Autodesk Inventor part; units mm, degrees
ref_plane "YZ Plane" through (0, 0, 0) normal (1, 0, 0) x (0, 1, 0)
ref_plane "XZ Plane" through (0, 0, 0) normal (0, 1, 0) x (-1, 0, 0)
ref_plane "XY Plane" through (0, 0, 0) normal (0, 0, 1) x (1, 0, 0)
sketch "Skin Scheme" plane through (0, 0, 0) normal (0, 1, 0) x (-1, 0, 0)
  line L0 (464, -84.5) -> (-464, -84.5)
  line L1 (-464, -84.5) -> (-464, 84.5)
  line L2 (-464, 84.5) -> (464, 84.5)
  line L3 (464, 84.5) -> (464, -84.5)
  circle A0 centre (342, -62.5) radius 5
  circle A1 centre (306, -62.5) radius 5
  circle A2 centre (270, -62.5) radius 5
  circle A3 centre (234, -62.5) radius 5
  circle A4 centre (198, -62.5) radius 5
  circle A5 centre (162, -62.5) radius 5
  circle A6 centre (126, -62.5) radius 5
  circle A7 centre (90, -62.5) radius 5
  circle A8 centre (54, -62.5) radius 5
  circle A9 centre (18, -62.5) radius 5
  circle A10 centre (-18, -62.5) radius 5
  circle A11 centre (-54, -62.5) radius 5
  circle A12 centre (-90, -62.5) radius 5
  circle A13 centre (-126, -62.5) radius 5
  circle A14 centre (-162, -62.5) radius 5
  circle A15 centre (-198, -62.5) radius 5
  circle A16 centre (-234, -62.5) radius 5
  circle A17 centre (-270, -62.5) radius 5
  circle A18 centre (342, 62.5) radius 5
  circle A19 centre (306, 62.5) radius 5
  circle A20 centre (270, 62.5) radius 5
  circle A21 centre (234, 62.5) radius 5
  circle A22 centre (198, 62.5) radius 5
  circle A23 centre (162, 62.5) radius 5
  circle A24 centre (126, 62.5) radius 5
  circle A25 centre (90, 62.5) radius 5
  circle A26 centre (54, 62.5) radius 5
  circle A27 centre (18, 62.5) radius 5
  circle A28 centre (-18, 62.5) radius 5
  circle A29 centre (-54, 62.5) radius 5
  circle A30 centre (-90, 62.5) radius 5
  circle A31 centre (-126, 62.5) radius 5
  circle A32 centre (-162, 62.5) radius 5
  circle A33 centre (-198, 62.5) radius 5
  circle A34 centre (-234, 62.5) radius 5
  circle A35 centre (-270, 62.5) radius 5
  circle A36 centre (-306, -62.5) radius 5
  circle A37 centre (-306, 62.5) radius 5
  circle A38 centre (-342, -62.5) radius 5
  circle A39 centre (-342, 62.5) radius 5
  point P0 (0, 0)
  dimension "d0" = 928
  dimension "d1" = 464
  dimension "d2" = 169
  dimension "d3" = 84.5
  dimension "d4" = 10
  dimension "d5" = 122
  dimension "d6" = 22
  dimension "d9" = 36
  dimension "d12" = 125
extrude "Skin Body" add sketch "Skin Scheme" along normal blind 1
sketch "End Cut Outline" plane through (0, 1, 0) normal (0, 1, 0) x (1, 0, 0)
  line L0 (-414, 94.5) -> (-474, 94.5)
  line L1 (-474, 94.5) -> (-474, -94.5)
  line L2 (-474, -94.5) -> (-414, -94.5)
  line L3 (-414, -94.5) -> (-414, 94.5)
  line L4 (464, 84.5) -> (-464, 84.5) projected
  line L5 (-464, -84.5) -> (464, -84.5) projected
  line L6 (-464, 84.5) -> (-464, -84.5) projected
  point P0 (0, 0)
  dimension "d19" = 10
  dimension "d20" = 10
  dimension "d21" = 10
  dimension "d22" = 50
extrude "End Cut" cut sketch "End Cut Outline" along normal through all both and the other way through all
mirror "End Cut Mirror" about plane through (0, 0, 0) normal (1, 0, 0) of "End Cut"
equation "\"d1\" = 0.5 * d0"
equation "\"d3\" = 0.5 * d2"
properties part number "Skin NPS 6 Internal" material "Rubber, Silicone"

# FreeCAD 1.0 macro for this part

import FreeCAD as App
import Part
import Sketcher
from FreeCAD import Vector


def add_polygon(sketch, points):
    """Adds a closed chain of lines whose ends are joined by coincident constraints."""
    first, n = sketch.GeometryCount, len(points)
    for a, b in zip(points, points[1:] + points[:1]):
        sketch.addGeometry(Part.LineSegment(App.Vector(*a, 0), App.Vector(*b, 0)), False)
    for i in range(n):
        sketch.addConstraint(Sketcher.Constraint("Coincident", first + i, 2, first + (i + 1) % n, 1))

doc = App.newDocument("Part")
body = doc.addObject("PartDesign::Body", "Body")

# Sketch on XZ plane
sketch1 = body.newObject("Sketcher::SketchObject", "Sketch")
sketch1.AttachmentSupport = (doc.getObject("XZ_Plane"), [""])
sketch1.MapMode = "FlatFace"
add_polygon(sketch1, [(464, -84.5), (-464, -84.5), (-464, 84.5), (464, 84.5)])  # lines 0-3
sketch1.addGeometry(Part.Circle(Vector(342, -62.5, 0), Vector(0, 0, 1), 5), False)  # 4
sketch1.addGeometry(Part.Circle(Vector(306, -62.5, 0), Vector(0, 0, 1), 5), False)  # 5
sketch1.addGeometry(Part.Circle(Vector(270, -62.5, 0), Vector(0, 0, 1), 5), False)  # 6
sketch1.addGeometry(Part.Circle(Vector(234, -62.5, 0), Vector(0, 0, 1), 5), False)  # 7
sketch1.addGeometry(Part.Circle(Vector(198, -62.5, 0), Vector(0, 0, 1), 5), False)  # 8
sketch1.addGeometry(Part.Circle(Vector(162, -62.5, 0), Vector(0, 0, 1), 5), False)  # 9
sketch1.addGeometry(Part.Circle(Vector(126, -62.5, 0), Vector(0, 0, 1), 5), False)  # 10
sketch1.addGeometry(Part.Circle(Vector(90, -62.5, 0), Vector(0, 0, 1), 5), False)  # 11
sketch1.addGeometry(Part.Circle(Vector(54, -62.5, 0), Vector(0, 0, 1), 5), False)  # 12
sketch1.addGeometry(Part.Circle(Vector(18, -62.5, 0), Vector(0, 0, 1), 5), False)  # 13
sketch1.addGeometry(Part.Circle(Vector(-18, -62.5, 0), Vector(0, 0, 1), 5), False)  # 14
sketch1.addGeometry(Part.Circle(Vector(-54, -62.5, 0), Vector(0, 0, 1), 5), False)  # 15
sketch1.addGeometry(Part.Circle(Vector(-90, -62.5, 0), Vector(0, 0, 1), 5), False)  # 16
sketch1.addGeometry(Part.Circle(Vector(-126, -62.5, 0), Vector(0, 0, 1), 5), False)  # 17
sketch1.addGeometry(Part.Circle(Vector(-162, -62.5, 0), Vector(0, 0, 1), 5), False)  # 18
sketch1.addGeometry(Part.Circle(Vector(-198, -62.5, 0), Vector(0, 0, 1), 5), False)  # 19
sketch1.addGeometry(Part.Circle(Vector(-234, -62.5, 0), Vector(0, 0, 1), 5), False)  # 20
sketch1.addGeometry(Part.Circle(Vector(-270, -62.5, 0), Vector(0, 0, 1), 5), False)  # 21
sketch1.addGeometry(Part.Circle(Vector(-306, -62.5, 0), Vector(0, 0, 1), 5), False)  # 22
sketch1.addGeometry(Part.Circle(Vector(-342, -62.5, 0), Vector(0, 0, 1), 5), False)  # 23
sketch1.addGeometry(Part.Circle(Vector(342, 62.5, 0), Vector(0, 0, 1), 5), False)  # 24
sketch1.addGeometry(Part.Circle(Vector(306, 62.5, 0), Vector(0, 0, 1), 5), False)  # 25
sketch1.addGeometry(Part.Circle(Vector(270, 62.5, 0), Vector(0, 0, 1), 5), False)  # 26
sketch1.addGeometry(Part.Circle(Vector(234, 62.5, 0), Vector(0, 0, 1), 5), False)  # 27
sketch1.addGeometry(Part.Circle(Vector(198, 62.5, 0), Vector(0, 0, 1), 5), False)  # 28
sketch1.addGeometry(Part.Circle(Vector(162, 62.5, 0), Vector(0, 0, 1), 5), False)  # 29
sketch1.addGeometry(Part.Circle(Vector(126, 62.5, 0), Vector(0, 0, 1), 5), False)  # 30
sketch1.addGeometry(Part.Circle(Vector(90, 62.5, 0), Vector(0, 0, 1), 5), False)  # 31
sketch1.addGeometry(Part.Circle(Vector(54, 62.5, 0), Vector(0, 0, 1), 5), False)  # 32
sketch1.addGeometry(Part.Circle(Vector(18, 62.5, 0), Vector(0, 0, 1), 5), False)  # 33
sketch1.addGeometry(Part.Circle(Vector(-18, 62.5, 0), Vector(0, 0, 1), 5), False)  # 34
sketch1.addGeometry(Part.Circle(Vector(-54, 62.5, 0), Vector(0, 0, 1), 5), False)  # 35
sketch1.addGeometry(Part.Circle(Vector(-90, 62.5, 0), Vector(0, 0, 1), 5), False)  # 36
sketch1.addGeometry(Part.Circle(Vector(-126, 62.5, 0), Vector(0, 0, 1), 5), False)  # 37
sketch1.addGeometry(Part.Circle(Vector(-162, 62.5, 0), Vector(0, 0, 1), 5), False)  # 38
sketch1.addGeometry(Part.Circle(Vector(-198, 62.5, 0), Vector(0, 0, 1), 5), False)  # 39
sketch1.addGeometry(Part.Circle(Vector(-234, 62.5, 0), Vector(0, 0, 1), 5), False)  # 40
sketch1.addGeometry(Part.Circle(Vector(-270, 62.5, 0), Vector(0, 0, 1), 5), False)  # 41
sketch1.addGeometry(Part.Circle(Vector(-306, 62.5, 0), Vector(0, 0, 1), 5), False)  # 42
sketch1.addGeometry(Part.Circle(Vector(-342, 62.5, 0), Vector(0, 0, 1), 5), False)  # 43
sketch1.addConstraint([
    Sketcher.Constraint("Horizontal", 0),
    Sketcher.Constraint("Vertical", 1),
    Sketcher.Constraint("Horizontal", 2),
    Sketcher.Constraint("Vertical", 3),
    Sketcher.Constraint("Equal", 4, 5),
    Sketcher.Constraint("Equal", 5, 6),
    Sketcher.Constraint("Equal", 6, 7),
    Sketcher.Constraint("Equal", 7, 8),
    Sketcher.Constraint("Equal", 8, 9),
    Sketcher.Constraint("Equal", 9, 10),
    Sketcher.Constraint("Equal", 10, 11),
    Sketcher.Constraint("Equal", 11, 12),
    Sketcher.Constraint("Equal", 12, 13),
    Sketcher.Constraint("Equal", 13, 14),
    Sketcher.Constraint("Equal", 14, 15),
    Sketcher.Constraint("Equal", 15, 16),
    Sketcher.Constraint("Equal", 16, 17),
    Sketcher.Constraint("Equal", 17, 18),
    Sketcher.Constraint("Equal", 18, 19),
    Sketcher.Constraint("Equal", 19, 20),
    Sketcher.Constraint("Equal", 20, 21),
    Sketcher.Constraint("Equal", 21, 22),
    Sketcher.Constraint("Equal", 22, 23),
    Sketcher.Constraint("Equal", 23, 24),
    Sketcher.Constraint("Equal", 24, 25),
    Sketcher.Constraint("Equal", 25, 26),
    Sketcher.Constraint("Equal", 26, 27),
    Sketcher.Constraint("Equal", 27, 28),
    Sketcher.Constraint("Equal", 28, 29),
    Sketcher.Constraint("Equal", 29, 30),
    Sketcher.Constraint("Equal", 30, 31),
    Sketcher.Constraint("Equal", 31, 32),
    Sketcher.Constraint("Equal", 32, 33),
    Sketcher.Constraint("Equal", 33, 34),
    Sketcher.Constraint("Equal", 34, 35),
    Sketcher.Constraint("Equal", 35, 36),
    Sketcher.Constraint("Equal", 36, 37),
    Sketcher.Constraint("Equal", 37, 38),
    Sketcher.Constraint("Equal", 38, 39),
    Sketcher.Constraint("Equal", 39, 40),
    Sketcher.Constraint("Equal", 40, 41),
    Sketcher.Constraint("Equal", 41, 42),
    Sketcher.Constraint("Equal", 42, 43),
    Sketcher.Constraint("Symmetric", 23, 3, 24, 3, -1, 1),
    Sketcher.Constraint("Symmetric", 22, 3, 25, 3, -1, 1),
    Sketcher.Constraint("Symmetric", 21, 3, 26, 3, -1, 1),
    Sketcher.Constraint("Symmetric", 20, 3, 27, 3, -1, 1),
    Sketcher.Constraint("Symmetric", 19, 3, 28, 3, -1, 1),
    Sketcher.Constraint("Symmetric", 18, 3, 29, 3, -1, 1),
    Sketcher.Constraint("Symmetric", 17, 3, 30, 3, -1, 1),
    Sketcher.Constraint("Symmetric", 16, 3, 31, 3, -1, 1),
    Sketcher.Constraint("Symmetric", 15, 3, 32, 3, -1, 1),
    Sketcher.Constraint("Symmetric", 14, 3, 33, 3, -1, 1),
    Sketcher.Constraint("Symmetric", 13, 3, 34, 3, -1, 1),
    Sketcher.Constraint("Symmetric", 12, 3, 35, 3, -1, 1),
    Sketcher.Constraint("Symmetric", 11, 3, 36, 3, -1, 1),
    Sketcher.Constraint("Symmetric", 10, 3, 37, 3, -1, 1),
    Sketcher.Constraint("Symmetric", 9, 3, 38, 3, -1, 1),
    Sketcher.Constraint("Symmetric", 8, 3, 39, 3, -1, 1),
    Sketcher.Constraint("Symmetric", 7, 3, 40, 3, -1, 1),
    Sketcher.Constraint("Symmetric", 6, 3, 41, 3, -1, 1),
    Sketcher.Constraint("Symmetric", 5, 3, 42, 3, -1, 1),
    Sketcher.Constraint("Symmetric", 4, 3, 43, 3, -1, 1),
    Sketcher.Constraint("Symmetric", 0, 2, 2, 2, -1, 1),
    Sketcher.Constraint("Symmetric", 13, 3, 14, 3, -2),
    Sketcher.Constraint("Symmetric", 12, 3, 15, 3, -2),
    Sketcher.Constraint("Symmetric", 11, 3, 16, 3, -2),
    Sketcher.Constraint("Symmetric", 10, 3, 17, 3, -2),
    Sketcher.Constraint("Symmetric", 9, 3, 18, 3, -2),
    Sketcher.Constraint("Symmetric", 8, 3, 19, 3, -2),
    Sketcher.Constraint("Symmetric", 7, 3, 20, 3, -2),
    Sketcher.Constraint("Symmetric", 6, 3, 21, 3, -2),
    Sketcher.Constraint("Symmetric", 5, 3, 22, 3, -2),
    Sketcher.Constraint("Symmetric", 4, 3, 23, 3, -2),
    Sketcher.Constraint("Horizontal", 4, 3, 5, 3),
    Sketcher.Constraint("Horizontal", 5, 3, 6, 3),
    Sketcher.Constraint("Horizontal", 6, 3, 7, 3),
    Sketcher.Constraint("Horizontal", 7, 3, 8, 3),
    Sketcher.Constraint("Horizontal", 8, 3, 9, 3),
    Sketcher.Constraint("Horizontal", 9, 3, 10, 3),
    Sketcher.Constraint("Horizontal", 10, 3, 11, 3),
    Sketcher.Constraint("Horizontal", 11, 3, 12, 3),
    Sketcher.Constraint("Horizontal", 12, 3, 13, 3),
    Sketcher.Constraint("Diameter", 4, 10.0),
    Sketcher.Constraint("DistanceX", 0, 2, 0, 1, 928.0),
    Sketcher.Constraint("DistanceY", 1, 1, 1, 2, 169.0),
    Sketcher.Constraint("DistanceX", 5, 3, 4, 3, 36.0),
    Sketcher.Constraint("DistanceX", 6, 3, 5, 3, 36.0),
    Sketcher.Constraint("DistanceX", 7, 3, 6, 3, 36.0),
    Sketcher.Constraint("DistanceX", 8, 3, 7, 3, 36.0),
    Sketcher.Constraint("DistanceX", 9, 3, 8, 3, 36.0),
    Sketcher.Constraint("DistanceX", 10, 3, 9, 3, 36.0),
    Sketcher.Constraint("DistanceX", 11, 3, 10, 3, 36.0),
    Sketcher.Constraint("DistanceX", 12, 3, 11, 3, 36.0),
    Sketcher.Constraint("DistanceX", 13, 3, 12, 3, 36.0),
    Sketcher.Constraint("DistanceX", 14, 3, 13, 3, 36.0),
    Sketcher.Constraint("DistanceY", 4, 3, 24, 3, 125.0),
])
pad1 = body.newObject("PartDesign::Pad", "Pad")
pad1.Profile = sketch1
pad1.Length = 1
pad1.Reversed = True

# Sketch on XZ plane
sketch2 = body.newObject("Sketcher::SketchObject", "Sketch001")
sketch2.AttachmentSupport = (doc.getObject("XZ_Plane"), [""])
sketch2.MapMode = "FlatFace"
sketch2.AttachmentOffset = App.Placement(Vector(0, 0, -1), App.Rotation())
add_polygon(sketch2, [(-414, -94.5), (-474, -94.5), (-474, 94.5), (-414, 94.5)])  # lines 0-3
sketch2.addConstraint([
    Sketcher.Constraint("Horizontal", 0),
    Sketcher.Constraint("Vertical", 1),
    Sketcher.Constraint("Horizontal", 2),
    Sketcher.Constraint("Vertical", 3),
    Sketcher.Constraint("DistanceX", 0, 2, 0, 1, 60.0),
    Sketcher.Constraint("DistanceY", 1, 1, 1, 2, 189.0),
    Sketcher.Constraint("DistanceX", 0, 2, -1, 1, 474.0),
    Sketcher.Constraint("DistanceY", 0, 2, -1, 1, 94.5),
])
pocket1 = body.newObject("PartDesign::Pocket", "Pocket")
pocket1.Profile = sketch2
pocket1.Type = "ThroughAll"
pocket1.Midplane = True
doc.recompute()

mirrored = body.newObject("PartDesign::Mirrored", "Mirrored")
mirrored.Originals = [pocket1]
mirrored.MirrorPlane = (doc.getObject("YZ_Plane"), [""])
body.Tip = mirrored

doc.recompute()
